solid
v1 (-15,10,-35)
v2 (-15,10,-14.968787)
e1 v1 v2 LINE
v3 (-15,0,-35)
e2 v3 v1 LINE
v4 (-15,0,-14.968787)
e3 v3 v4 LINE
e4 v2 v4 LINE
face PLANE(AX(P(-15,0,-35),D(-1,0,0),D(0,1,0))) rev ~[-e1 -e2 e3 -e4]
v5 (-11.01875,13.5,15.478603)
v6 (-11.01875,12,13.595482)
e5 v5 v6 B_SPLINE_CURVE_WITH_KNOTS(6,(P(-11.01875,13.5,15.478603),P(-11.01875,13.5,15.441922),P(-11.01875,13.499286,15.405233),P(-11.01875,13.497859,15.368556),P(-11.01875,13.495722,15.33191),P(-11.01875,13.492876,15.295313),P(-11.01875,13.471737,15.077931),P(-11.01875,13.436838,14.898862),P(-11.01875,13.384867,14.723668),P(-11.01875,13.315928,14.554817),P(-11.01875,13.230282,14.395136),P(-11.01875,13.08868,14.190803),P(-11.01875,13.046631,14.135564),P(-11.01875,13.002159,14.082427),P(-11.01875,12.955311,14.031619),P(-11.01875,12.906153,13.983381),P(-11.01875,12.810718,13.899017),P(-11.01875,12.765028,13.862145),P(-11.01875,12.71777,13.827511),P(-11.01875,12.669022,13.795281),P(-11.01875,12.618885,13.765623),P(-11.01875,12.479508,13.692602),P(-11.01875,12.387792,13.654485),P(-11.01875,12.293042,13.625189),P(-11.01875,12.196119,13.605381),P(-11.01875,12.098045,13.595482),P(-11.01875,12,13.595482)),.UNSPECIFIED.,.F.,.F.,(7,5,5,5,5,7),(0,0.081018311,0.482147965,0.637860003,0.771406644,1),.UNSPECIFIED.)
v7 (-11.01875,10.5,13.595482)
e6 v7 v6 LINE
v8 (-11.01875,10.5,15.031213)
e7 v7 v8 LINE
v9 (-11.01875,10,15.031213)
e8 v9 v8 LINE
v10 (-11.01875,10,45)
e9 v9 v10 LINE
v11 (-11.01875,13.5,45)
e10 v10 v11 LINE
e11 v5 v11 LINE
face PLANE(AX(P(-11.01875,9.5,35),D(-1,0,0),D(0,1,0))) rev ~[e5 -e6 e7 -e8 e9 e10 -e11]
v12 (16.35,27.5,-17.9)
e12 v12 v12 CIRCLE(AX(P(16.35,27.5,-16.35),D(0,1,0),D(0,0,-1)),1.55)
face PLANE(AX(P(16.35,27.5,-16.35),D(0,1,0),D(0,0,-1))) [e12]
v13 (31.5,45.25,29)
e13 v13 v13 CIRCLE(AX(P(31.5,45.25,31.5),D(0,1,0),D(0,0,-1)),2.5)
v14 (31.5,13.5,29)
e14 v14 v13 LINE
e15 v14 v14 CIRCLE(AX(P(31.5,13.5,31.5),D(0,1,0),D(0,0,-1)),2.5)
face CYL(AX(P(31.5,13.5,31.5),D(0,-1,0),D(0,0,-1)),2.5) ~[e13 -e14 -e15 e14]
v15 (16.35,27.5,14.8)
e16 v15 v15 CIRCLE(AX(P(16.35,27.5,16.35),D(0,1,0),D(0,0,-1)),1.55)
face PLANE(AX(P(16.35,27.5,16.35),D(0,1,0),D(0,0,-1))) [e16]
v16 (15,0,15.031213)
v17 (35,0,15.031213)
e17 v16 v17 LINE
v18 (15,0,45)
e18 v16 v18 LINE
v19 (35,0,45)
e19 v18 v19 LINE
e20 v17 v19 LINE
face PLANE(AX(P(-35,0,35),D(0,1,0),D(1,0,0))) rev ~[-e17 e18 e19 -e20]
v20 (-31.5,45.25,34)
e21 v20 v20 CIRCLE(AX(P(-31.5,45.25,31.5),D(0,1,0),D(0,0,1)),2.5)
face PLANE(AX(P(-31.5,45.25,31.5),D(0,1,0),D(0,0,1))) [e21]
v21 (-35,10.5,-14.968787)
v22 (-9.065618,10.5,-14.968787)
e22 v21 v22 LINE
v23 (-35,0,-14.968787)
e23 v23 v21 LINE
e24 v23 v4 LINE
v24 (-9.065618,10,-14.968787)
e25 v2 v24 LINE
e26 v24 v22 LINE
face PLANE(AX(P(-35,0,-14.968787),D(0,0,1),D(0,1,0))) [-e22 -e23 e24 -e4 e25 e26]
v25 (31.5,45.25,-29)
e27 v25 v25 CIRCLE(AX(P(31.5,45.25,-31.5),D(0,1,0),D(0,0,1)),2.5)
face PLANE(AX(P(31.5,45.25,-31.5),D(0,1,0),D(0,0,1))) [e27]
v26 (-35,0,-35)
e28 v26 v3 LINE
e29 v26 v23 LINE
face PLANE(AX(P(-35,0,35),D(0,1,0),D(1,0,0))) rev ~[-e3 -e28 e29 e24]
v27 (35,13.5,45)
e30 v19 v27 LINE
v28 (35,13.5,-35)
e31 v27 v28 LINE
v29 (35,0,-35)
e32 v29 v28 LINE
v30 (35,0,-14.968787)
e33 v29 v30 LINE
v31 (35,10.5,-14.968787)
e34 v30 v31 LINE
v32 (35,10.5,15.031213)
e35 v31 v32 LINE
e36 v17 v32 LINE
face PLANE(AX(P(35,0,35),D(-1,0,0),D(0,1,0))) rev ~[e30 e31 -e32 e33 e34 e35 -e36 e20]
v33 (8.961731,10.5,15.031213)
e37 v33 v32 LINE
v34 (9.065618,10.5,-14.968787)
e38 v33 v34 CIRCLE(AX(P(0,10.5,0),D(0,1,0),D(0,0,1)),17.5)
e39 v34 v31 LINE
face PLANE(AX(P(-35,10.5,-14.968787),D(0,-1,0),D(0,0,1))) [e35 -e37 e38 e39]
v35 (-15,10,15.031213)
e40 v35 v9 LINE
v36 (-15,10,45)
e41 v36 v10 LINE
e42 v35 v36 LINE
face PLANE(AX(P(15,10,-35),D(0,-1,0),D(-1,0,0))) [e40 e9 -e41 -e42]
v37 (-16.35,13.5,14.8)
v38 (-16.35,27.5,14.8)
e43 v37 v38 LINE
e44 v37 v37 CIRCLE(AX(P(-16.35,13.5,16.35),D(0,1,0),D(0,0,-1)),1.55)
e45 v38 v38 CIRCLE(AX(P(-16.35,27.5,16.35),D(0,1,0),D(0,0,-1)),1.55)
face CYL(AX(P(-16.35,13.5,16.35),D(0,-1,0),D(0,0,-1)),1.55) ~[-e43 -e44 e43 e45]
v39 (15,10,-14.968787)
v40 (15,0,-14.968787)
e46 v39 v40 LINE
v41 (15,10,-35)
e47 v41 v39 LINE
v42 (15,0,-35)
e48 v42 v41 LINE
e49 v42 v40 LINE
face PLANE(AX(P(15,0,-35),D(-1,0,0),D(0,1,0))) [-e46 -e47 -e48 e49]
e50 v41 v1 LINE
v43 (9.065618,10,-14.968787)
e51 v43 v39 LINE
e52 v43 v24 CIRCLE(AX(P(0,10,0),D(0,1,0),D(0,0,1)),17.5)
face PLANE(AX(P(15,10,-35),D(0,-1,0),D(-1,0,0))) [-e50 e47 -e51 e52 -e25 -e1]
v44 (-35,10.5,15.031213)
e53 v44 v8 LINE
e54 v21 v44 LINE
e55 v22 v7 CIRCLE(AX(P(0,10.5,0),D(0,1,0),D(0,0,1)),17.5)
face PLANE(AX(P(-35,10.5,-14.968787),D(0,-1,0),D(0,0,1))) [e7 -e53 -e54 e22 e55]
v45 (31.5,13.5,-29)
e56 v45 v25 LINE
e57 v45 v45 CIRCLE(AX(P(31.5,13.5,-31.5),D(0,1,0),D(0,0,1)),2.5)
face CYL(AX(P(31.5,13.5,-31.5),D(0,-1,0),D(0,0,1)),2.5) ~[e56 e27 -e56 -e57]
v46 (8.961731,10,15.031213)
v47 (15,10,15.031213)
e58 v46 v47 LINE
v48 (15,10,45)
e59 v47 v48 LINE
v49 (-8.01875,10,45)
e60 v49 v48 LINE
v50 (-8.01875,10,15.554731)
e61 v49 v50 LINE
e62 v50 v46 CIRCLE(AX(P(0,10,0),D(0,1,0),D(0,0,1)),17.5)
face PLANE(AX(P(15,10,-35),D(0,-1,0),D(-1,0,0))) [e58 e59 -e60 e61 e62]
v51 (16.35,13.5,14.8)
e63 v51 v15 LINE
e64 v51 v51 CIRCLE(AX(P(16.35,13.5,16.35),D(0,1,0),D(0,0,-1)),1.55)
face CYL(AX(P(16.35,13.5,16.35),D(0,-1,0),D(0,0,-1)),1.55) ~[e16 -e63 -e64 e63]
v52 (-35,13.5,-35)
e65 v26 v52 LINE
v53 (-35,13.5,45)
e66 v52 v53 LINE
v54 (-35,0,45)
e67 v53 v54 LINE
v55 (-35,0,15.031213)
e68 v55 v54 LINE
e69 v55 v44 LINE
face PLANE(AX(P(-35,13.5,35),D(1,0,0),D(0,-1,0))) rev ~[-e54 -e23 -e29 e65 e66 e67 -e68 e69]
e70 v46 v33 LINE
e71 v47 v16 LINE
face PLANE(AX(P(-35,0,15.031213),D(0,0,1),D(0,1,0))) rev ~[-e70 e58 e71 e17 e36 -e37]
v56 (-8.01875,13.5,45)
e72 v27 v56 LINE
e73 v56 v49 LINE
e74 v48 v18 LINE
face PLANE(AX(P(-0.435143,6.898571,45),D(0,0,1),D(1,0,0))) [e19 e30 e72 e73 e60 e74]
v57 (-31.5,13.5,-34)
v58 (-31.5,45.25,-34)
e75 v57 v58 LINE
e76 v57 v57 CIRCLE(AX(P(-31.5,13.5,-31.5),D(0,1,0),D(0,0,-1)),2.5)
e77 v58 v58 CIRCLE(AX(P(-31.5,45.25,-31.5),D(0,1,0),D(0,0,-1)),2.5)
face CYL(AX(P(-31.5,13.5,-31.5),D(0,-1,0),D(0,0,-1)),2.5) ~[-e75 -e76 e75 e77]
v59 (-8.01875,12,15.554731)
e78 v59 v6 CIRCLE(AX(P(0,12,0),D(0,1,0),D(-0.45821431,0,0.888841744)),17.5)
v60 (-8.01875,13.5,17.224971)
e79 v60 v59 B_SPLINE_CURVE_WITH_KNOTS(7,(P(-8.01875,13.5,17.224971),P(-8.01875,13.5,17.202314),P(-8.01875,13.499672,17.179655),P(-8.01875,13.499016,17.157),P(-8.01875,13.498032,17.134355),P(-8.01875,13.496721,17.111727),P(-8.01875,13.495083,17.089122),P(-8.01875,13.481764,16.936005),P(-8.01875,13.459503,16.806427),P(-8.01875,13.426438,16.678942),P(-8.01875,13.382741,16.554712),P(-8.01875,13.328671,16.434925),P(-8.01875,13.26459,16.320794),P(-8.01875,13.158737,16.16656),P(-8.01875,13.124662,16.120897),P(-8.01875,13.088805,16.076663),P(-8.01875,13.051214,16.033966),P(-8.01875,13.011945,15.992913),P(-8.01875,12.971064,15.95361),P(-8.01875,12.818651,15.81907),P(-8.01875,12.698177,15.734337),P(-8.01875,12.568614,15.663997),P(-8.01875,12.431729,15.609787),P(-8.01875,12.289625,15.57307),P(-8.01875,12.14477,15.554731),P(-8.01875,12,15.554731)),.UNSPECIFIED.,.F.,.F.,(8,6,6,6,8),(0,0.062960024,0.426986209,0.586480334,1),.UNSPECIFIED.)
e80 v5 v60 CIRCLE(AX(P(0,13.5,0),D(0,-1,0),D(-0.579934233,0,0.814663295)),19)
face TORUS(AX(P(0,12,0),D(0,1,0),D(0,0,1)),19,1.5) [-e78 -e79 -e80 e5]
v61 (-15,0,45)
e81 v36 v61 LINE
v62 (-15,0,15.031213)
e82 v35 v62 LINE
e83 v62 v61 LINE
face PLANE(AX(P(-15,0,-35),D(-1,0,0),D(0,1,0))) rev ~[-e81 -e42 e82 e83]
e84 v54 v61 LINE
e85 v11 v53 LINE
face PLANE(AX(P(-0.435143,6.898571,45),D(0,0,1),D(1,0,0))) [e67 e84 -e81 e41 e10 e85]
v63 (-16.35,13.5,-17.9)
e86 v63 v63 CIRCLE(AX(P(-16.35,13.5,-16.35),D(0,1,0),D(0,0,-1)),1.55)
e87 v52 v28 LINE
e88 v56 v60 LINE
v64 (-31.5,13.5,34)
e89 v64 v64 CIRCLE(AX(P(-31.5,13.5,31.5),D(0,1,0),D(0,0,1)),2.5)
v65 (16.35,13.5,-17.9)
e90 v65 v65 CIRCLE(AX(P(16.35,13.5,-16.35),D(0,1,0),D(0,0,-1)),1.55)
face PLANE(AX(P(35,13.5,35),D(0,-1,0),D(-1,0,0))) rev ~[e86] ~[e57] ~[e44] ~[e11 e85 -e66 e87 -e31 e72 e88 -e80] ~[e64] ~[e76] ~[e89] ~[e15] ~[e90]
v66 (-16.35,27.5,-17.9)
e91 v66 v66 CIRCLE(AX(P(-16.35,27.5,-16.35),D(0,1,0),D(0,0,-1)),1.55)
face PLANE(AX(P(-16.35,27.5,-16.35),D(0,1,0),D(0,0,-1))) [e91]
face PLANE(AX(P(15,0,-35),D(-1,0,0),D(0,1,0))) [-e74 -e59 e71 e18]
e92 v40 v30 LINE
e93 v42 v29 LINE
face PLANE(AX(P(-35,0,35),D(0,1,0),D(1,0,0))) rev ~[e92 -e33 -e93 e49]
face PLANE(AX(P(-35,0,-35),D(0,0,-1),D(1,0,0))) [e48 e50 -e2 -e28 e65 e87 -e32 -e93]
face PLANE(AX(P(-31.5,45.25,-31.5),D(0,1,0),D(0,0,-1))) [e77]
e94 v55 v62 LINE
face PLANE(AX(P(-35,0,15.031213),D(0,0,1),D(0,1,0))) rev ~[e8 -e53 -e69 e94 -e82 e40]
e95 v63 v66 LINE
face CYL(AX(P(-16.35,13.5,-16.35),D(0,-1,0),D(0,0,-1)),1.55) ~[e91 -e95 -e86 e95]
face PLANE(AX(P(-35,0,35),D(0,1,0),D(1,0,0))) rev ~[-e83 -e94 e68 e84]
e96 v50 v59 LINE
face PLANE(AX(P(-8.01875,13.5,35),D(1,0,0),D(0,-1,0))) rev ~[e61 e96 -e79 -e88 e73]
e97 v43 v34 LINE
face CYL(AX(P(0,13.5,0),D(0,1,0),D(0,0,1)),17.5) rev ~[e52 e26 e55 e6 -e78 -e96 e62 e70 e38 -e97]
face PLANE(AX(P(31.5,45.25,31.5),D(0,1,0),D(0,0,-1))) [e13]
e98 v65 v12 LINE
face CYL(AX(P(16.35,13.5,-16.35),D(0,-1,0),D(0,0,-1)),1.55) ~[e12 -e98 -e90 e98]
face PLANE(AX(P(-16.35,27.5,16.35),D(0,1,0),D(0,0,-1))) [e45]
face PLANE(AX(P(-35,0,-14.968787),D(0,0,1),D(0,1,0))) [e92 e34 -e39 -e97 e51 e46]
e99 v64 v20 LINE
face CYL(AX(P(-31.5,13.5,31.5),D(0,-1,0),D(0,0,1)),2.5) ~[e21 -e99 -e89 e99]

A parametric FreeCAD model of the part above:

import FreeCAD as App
import Part
import Sketcher
from FreeCAD import Vector
Q = App.Units.Quantity


def edges_at(feature, points):
    """Names of the edges that pass closest to the given points."""
    edges = feature.Shape.Edges
    near = lambda p: min(range(len(edges)), key=lambda i: edges[i].distToShape(Part.Vertex(*p))[0])
    return sorted({f"Edge{near(p) + 1}" for p in points})


def add_polygon(sketch, points):
    """Adds a closed chain of lines whose ends are joined by coincident constraints."""
    first, n = sketch.GeometryCount, len(points)
    for a, b in zip(points, points[1:] + points[:1]):
        sketch.addGeometry(Part.LineSegment(App.Vector(*a, 0), App.Vector(*b, 0)), False)
    for i in range(n):
        sketch.addConstraint(Sketcher.Constraint("Coincident", first + i, 2, first + (i + 1) % n, 1))

doc = App.newDocument("Part")
body = doc.addObject("PartDesign::Body", "Body")

# Sketch on XZ plane
sketch1 = doc.addObject("Sketcher::SketchObject", "Sketch")
body.addObject(sketch1)
sketch1.AttachmentSupport = (doc.XZ_Plane, [""])
sketch1.MapMode = "FlatFace"
add_polygon(sketch1, [(-35, -35), (-35, 35), (35, 35), (35, -35)])  # lines 0-3
sketch1.addConstraint(Sketcher.Constraint("Vertical", 0))
sketch1.addConstraint(Sketcher.Constraint("Horizontal", 1))
sketch1.addConstraint(Sketcher.Constraint("Vertical", 2))
sketch1.addConstraint(Sketcher.Constraint("Horizontal", 3))
sketch1.addConstraint(Sketcher.Constraint("Symmetric", 0, 2, 2, 2, -1, 1))
sketch1.addConstraint(Sketcher.Constraint("Equal", 3, 0))
sketch1.addConstraint(Sketcher.Constraint("DistanceX", 1, 1, 1, 2, Q("70 mm")))
pad1 = doc.addObject("PartDesign::Pad", "Pad")
body.addObject(pad1)
pad1.Profile = sketch1
pad1.Length = 13.5
pad1.Reversed = True

# Sketch on XZ plane
sketch2 = doc.addObject("Sketcher::SketchObject", "Sketch001")
body.addObject(sketch2)
sketch2.AttachmentSupport = (doc.XZ_Plane, [""])
sketch2.MapMode = "FlatFace"
sketch2.AttachmentOffset = App.Placement(Vector(0, 0, -13.5), App.Rotation())
sketch2.addGeometry(Part.Circle(Vector(-16.4, -16.4, 0), Vector(0, 0, 1), 1.6), False)
sketch2.addGeometry(Part.Circle(Vector(16.4, -16.4, 0), Vector(0, 0, 1), 1.6), False)
sketch2.addGeometry(Part.Circle(Vector(16.4, 16.4, 0), Vector(0, 0, 1), 1.6), False)
sketch2.addGeometry(Part.Circle(Vector(-16.4, 16.4, 0), Vector(0, 0, 1), 1.6), False)
sketch2.addConstraint(Sketcher.Constraint("Equal", 0, 1))
sketch2.addConstraint(Sketcher.Constraint("Equal", 1, 2))
sketch2.addConstraint(Sketcher.Constraint("Equal", 2, 3))
sketch2.addConstraint(Sketcher.Constraint("Symmetric", 0, 3, 2, 3, -1, 1))
sketch2.addConstraint(Sketcher.Constraint("Symmetric", 1, 3, 3, 3, -1, 1))
sketch2.addConstraint(Sketcher.Constraint("Symmetric", 0, 3, 1, 3, -2))
sketch2.addConstraint(Sketcher.Constraint("Diameter", 0, Q("3.1 mm")))
sketch2.addConstraint(Sketcher.Constraint("DistanceX", 0, 3, 1, 3, Q("32.7 mm")))
sketch2.addConstraint(Sketcher.Constraint("DistanceY", 1, 3, 2, 3, Q("32.7 mm")))
pad2 = doc.addObject("PartDesign::Pad", "Pad001")
body.addObject(pad2)
pad2.Profile = sketch2
pad2.Length = 14
pad2.Reversed = True

# Sketch on XZ plane
sketch3 = doc.addObject("Sketcher::SketchObject", "Sketch002")
body.addObject(sketch3)
sketch3.AttachmentSupport = (doc.XZ_Plane, [""])
sketch3.MapMode = "FlatFace"
sketch3.AttachmentOffset = App.Placement(Vector(0, 0, -13.5), App.Rotation())
sketch3.addGeometry(Part.Circle(Vector(0, 0, 0), Vector(0, 0, 1), 18), False)
sketch3.addConstraint(Sketcher.Constraint("Coincident", 0, 3, -1, 1))
sketch3.addConstraint(Sketcher.Constraint("Diameter", 0, Q("35 mm")))
pocket1 = doc.addObject("PartDesign::Pocket", "Pocket")
body.addObject(pocket1)
pocket1.Profile = sketch3
pocket1.Length = 15
pocket1.Reversed = True
doc.recompute()

fillet = doc.addObject("PartDesign::Fillet", "Fillet")
body.addObject(fillet)
fillet.Base = (pocket1, edges_at(pocket1, [(0, 13.5, -17.5)]))
fillet.Radius = 1.5

# Sketch on XZ plane
sketch4 = doc.addObject("Sketcher::SketchObject", "Sketch003")
body.addObject(sketch4)
sketch4.AttachmentSupport = (doc.XZ_Plane, [""])
sketch4.MapMode = "FlatFace"
sketch4.AttachmentOffset = App.Placement(Vector(0, 0, -13.5), App.Rotation())
sketch4.addGeometry(Part.Circle(Vector(-31.5, 31.5, 0), Vector(0, 0, 1), 2.5), False)
sketch4.addGeometry(Part.Circle(Vector(-31.5, -31.5, 0), Vector(0, 0, 1), 2.5), False)
sketch4.addGeometry(Part.Circle(Vector(31.5, -31.5, 0), Vector(0, 0, 1), 2.5), False)
sketch4.addGeometry(Part.Circle(Vector(31.5, 31.5, 0), Vector(0, 0, 1), 2.5), False)
sketch4.addConstraint(Sketcher.Constraint("Equal", 0, 1))
sketch4.addConstraint(Sketcher.Constraint("Equal", 1, 2))
sketch4.addConstraint(Sketcher.Constraint("Equal", 2, 3))
sketch4.addConstraint(Sketcher.Constraint("Symmetric", 0, 3, 2, 3, -1, 1))
sketch4.addConstraint(Sketcher.Constraint("Symmetric", 1, 3, 3, 3, -1, 1))
sketch4.addConstraint(Sketcher.Constraint("Symmetric", 1, 3, 2, 3, -2))
sketch4.addConstraint(Sketcher.Constraint("Diameter", 0, Q("5 mm")))
sketch4.addConstraint(Sketcher.Constraint("DistanceY", 1, 3, 0, 3, Q("63 mm")))
sketch4.addConstraint(Sketcher.Constraint("DistanceX", 1, 3, 2, 3, Q("63 mm")))
pad3 = doc.addObject("PartDesign::Pad", "Pad002")
body.addObject(pad3)
pad3.Profile = sketch4
pad3.Length = 31.75
pad3.Reversed = True

# Sketch on XY plane
sketch5 = doc.addObject("Sketcher::SketchObject", "Sketch004")
body.addObject(sketch5)
sketch5.AttachmentSupport = (doc.XY_Plane, [""])
sketch5.MapMode = "FlatFace"
sketch5.AttachmentOffset = App.Placement(Vector(0, 0, 35), App.Rotation())
add_polygon(sketch5, [(-11, 13.5), (-11, 9.5), (-8, 9.5), (-8, 13.5)])  # lines 0-3
sketch5.addConstraint(Sketcher.Constraint("Vertical", 0))
sketch5.addConstraint(Sketcher.Constraint("Horizontal", 1))
sketch5.addConstraint(Sketcher.Constraint("Vertical", 2))
sketch5.addConstraint(Sketcher.Constraint("Horizontal", 3))
sketch5.addConstraint(Sketcher.Constraint("DistanceX", 1, 1, 1, 2, Q("3 mm")))
sketch5.addConstraint(Sketcher.Constraint("DistanceY", 0, 2, 0, 1, Q("4 mm")))
sketch5.addConstraint(Sketcher.Constraint("DistanceY", -1, 1, 0, 2, Q("9.5 mm")))
sketch5.addConstraint(Sketcher.Constraint("DistanceX", 0, 2, -1, 1, Q("11.01875 mm")))
pocket2 = doc.addObject("PartDesign::Pocket", "Pocket001")
body.addObject(pocket2)
pocket2.Profile = sketch5
pocket2.Length = 22

# Sketch on XY plane
sketch6 = doc.addObject("Sketcher::SketchObject", "Sketch005")
body.addObject(sketch6)
sketch6.AttachmentSupport = (doc.XY_Plane, [""])
sketch6.MapMode = "FlatFace"
sketch6.AttachmentOffset = App.Placement(Vector(0, 0, 35), App.Rotation())
add_polygon(sketch6, [(-8, 9.5), (-11, 9.5), (-11, 13.5), (-35, 13.5), (-35, 0), (35, 0), (35, 13.5), (-8, 13.5)])  # lines 0-7
sketch6.addConstraint(Sketcher.Constraint("Horizontal", 0))
sketch6.addConstraint(Sketcher.Constraint("Vertical", 1))
sketch6.addConstraint(Sketcher.Constraint("Horizontal", 2))
sketch6.addConstraint(Sketcher.Constraint("Vertical", 3))
sketch6.addConstraint(Sketcher.Constraint("Horizontal", 4))
sketch6.addConstraint(Sketcher.Constraint("Vertical", 5))
sketch6.addConstraint(Sketcher.Constraint("Horizontal", 6))
sketch6.addConstraint(Sketcher.Constraint("Vertical", 7))
sketch6.addConstraint(Sketcher.Constraint("Symmetric", 3, 2, 4, 2, -1, 1))
sketch6.addConstraint(Sketcher.Constraint("Horizontal", 2, 2, 5, 2))
sketch6.addConstraint(Sketcher.Constraint("DistanceX", 0, 2, 0, 1, Q("3 mm")))
sketch6.addConstraint(Sketcher.Constraint("DistanceX", 4, 1, 4, 2, Q("70 mm")))
sketch6.addConstraint(Sketcher.Constraint("DistanceY", 1, 1, 1, 2, Q("4 mm")))
sketch6.addConstraint(Sketcher.Constraint("DistanceY", 3, 2, 3, 1, Q("13.5 mm")))
sketch6.addConstraint(Sketcher.Constraint("DistanceX", 2, 2, 2, 1, Q("23.98125 mm")))
pad4 = doc.addObject("PartDesign::Pad", "Pad003")
body.addObject(pad4)
pad4.Profile = sketch6
pad4.Length = 10

# Sketch on YZ plane
sketch7 = doc.addObject("Sketcher::SketchObject", "Sketch006")
body.addObject(sketch7)
sketch7.AttachmentSupport = (doc.YZ_Plane, [""])
sketch7.MapMode = "FlatFace"
sketch7.AttachmentOffset = App.Placement(Vector(0, 0, -35), App.Rotation())
add_polygon(sketch7, [(10, -15), (0, -15), (0, 15), (10, 15)])  # lines 0-3
sketch7.addConstraint(Sketcher.Constraint("Horizontal", 0))
sketch7.addConstraint(Sketcher.Constraint("Vertical", 1))
sketch7.addConstraint(Sketcher.Constraint("Horizontal", 2))
sketch7.addConstraint(Sketcher.Constraint("Vertical", 3))
sketch7.addConstraint(Sketcher.Constraint("PointOnObject", 0, 2, -2))
sketch7.addConstraint(Sketcher.Constraint("DistanceY", 1, 1, 1, 2, Q("30 mm")))
sketch7.addConstraint(Sketcher.Constraint("DistanceX", 0, 2, 0, 1, Q("10.5 mm")))
sketch7.addConstraint(Sketcher.Constraint("DistanceY", 0, 2, -1, 1, Q("14.968787 mm")))
pocket3 = doc.addObject("PartDesign::Pocket", "Pocket002")
body.addObject(pocket3)
pocket3.Profile = sketch7
pocket3.Type = "ThroughAll"
pocket3.Reversed = True

# Sketch on XY plane
sketch8 = doc.addObject("Sketcher::SketchObject", "Sketch007")
body.addObject(sketch8)
sketch8.AttachmentSupport = (doc.XY_Plane, [""])
sketch8.MapMode = "FlatFace"
sketch8.AttachmentOffset = App.Placement(Vector(0, 0, -35), App.Rotation())
add_polygon(sketch8, [(15, 10), (15, 0), (-15, 0), (-15, 10)])  # lines 0-3
sketch8.addConstraint(Sketcher.Constraint("Vertical", 0))
sketch8.addConstraint(Sketcher.Constraint("Horizontal", 1))
sketch8.addConstraint(Sketcher.Constraint("Vertical", 2))
sketch8.addConstraint(Sketcher.Constraint("Horizontal", 3))
sketch8.addConstraint(Sketcher.Constraint("Symmetric", 0, 2, 1, 2, -1, 1))
sketch8.addConstraint(Sketcher.Constraint("DistanceX", 1, 2, 1, 1, Q("30 mm")))
sketch8.addConstraint(Sketcher.Constraint("DistanceY", 0, 2, 0, 1, Q("10 mm")))
pocket4 = doc.addObject("PartDesign::Pocket", "Pocket003")
body.addObject(pocket4)
pocket4.Profile = sketch8
pocket4.Type = "ThroughAll"
pocket4.Reversed = True

doc.recompute()
